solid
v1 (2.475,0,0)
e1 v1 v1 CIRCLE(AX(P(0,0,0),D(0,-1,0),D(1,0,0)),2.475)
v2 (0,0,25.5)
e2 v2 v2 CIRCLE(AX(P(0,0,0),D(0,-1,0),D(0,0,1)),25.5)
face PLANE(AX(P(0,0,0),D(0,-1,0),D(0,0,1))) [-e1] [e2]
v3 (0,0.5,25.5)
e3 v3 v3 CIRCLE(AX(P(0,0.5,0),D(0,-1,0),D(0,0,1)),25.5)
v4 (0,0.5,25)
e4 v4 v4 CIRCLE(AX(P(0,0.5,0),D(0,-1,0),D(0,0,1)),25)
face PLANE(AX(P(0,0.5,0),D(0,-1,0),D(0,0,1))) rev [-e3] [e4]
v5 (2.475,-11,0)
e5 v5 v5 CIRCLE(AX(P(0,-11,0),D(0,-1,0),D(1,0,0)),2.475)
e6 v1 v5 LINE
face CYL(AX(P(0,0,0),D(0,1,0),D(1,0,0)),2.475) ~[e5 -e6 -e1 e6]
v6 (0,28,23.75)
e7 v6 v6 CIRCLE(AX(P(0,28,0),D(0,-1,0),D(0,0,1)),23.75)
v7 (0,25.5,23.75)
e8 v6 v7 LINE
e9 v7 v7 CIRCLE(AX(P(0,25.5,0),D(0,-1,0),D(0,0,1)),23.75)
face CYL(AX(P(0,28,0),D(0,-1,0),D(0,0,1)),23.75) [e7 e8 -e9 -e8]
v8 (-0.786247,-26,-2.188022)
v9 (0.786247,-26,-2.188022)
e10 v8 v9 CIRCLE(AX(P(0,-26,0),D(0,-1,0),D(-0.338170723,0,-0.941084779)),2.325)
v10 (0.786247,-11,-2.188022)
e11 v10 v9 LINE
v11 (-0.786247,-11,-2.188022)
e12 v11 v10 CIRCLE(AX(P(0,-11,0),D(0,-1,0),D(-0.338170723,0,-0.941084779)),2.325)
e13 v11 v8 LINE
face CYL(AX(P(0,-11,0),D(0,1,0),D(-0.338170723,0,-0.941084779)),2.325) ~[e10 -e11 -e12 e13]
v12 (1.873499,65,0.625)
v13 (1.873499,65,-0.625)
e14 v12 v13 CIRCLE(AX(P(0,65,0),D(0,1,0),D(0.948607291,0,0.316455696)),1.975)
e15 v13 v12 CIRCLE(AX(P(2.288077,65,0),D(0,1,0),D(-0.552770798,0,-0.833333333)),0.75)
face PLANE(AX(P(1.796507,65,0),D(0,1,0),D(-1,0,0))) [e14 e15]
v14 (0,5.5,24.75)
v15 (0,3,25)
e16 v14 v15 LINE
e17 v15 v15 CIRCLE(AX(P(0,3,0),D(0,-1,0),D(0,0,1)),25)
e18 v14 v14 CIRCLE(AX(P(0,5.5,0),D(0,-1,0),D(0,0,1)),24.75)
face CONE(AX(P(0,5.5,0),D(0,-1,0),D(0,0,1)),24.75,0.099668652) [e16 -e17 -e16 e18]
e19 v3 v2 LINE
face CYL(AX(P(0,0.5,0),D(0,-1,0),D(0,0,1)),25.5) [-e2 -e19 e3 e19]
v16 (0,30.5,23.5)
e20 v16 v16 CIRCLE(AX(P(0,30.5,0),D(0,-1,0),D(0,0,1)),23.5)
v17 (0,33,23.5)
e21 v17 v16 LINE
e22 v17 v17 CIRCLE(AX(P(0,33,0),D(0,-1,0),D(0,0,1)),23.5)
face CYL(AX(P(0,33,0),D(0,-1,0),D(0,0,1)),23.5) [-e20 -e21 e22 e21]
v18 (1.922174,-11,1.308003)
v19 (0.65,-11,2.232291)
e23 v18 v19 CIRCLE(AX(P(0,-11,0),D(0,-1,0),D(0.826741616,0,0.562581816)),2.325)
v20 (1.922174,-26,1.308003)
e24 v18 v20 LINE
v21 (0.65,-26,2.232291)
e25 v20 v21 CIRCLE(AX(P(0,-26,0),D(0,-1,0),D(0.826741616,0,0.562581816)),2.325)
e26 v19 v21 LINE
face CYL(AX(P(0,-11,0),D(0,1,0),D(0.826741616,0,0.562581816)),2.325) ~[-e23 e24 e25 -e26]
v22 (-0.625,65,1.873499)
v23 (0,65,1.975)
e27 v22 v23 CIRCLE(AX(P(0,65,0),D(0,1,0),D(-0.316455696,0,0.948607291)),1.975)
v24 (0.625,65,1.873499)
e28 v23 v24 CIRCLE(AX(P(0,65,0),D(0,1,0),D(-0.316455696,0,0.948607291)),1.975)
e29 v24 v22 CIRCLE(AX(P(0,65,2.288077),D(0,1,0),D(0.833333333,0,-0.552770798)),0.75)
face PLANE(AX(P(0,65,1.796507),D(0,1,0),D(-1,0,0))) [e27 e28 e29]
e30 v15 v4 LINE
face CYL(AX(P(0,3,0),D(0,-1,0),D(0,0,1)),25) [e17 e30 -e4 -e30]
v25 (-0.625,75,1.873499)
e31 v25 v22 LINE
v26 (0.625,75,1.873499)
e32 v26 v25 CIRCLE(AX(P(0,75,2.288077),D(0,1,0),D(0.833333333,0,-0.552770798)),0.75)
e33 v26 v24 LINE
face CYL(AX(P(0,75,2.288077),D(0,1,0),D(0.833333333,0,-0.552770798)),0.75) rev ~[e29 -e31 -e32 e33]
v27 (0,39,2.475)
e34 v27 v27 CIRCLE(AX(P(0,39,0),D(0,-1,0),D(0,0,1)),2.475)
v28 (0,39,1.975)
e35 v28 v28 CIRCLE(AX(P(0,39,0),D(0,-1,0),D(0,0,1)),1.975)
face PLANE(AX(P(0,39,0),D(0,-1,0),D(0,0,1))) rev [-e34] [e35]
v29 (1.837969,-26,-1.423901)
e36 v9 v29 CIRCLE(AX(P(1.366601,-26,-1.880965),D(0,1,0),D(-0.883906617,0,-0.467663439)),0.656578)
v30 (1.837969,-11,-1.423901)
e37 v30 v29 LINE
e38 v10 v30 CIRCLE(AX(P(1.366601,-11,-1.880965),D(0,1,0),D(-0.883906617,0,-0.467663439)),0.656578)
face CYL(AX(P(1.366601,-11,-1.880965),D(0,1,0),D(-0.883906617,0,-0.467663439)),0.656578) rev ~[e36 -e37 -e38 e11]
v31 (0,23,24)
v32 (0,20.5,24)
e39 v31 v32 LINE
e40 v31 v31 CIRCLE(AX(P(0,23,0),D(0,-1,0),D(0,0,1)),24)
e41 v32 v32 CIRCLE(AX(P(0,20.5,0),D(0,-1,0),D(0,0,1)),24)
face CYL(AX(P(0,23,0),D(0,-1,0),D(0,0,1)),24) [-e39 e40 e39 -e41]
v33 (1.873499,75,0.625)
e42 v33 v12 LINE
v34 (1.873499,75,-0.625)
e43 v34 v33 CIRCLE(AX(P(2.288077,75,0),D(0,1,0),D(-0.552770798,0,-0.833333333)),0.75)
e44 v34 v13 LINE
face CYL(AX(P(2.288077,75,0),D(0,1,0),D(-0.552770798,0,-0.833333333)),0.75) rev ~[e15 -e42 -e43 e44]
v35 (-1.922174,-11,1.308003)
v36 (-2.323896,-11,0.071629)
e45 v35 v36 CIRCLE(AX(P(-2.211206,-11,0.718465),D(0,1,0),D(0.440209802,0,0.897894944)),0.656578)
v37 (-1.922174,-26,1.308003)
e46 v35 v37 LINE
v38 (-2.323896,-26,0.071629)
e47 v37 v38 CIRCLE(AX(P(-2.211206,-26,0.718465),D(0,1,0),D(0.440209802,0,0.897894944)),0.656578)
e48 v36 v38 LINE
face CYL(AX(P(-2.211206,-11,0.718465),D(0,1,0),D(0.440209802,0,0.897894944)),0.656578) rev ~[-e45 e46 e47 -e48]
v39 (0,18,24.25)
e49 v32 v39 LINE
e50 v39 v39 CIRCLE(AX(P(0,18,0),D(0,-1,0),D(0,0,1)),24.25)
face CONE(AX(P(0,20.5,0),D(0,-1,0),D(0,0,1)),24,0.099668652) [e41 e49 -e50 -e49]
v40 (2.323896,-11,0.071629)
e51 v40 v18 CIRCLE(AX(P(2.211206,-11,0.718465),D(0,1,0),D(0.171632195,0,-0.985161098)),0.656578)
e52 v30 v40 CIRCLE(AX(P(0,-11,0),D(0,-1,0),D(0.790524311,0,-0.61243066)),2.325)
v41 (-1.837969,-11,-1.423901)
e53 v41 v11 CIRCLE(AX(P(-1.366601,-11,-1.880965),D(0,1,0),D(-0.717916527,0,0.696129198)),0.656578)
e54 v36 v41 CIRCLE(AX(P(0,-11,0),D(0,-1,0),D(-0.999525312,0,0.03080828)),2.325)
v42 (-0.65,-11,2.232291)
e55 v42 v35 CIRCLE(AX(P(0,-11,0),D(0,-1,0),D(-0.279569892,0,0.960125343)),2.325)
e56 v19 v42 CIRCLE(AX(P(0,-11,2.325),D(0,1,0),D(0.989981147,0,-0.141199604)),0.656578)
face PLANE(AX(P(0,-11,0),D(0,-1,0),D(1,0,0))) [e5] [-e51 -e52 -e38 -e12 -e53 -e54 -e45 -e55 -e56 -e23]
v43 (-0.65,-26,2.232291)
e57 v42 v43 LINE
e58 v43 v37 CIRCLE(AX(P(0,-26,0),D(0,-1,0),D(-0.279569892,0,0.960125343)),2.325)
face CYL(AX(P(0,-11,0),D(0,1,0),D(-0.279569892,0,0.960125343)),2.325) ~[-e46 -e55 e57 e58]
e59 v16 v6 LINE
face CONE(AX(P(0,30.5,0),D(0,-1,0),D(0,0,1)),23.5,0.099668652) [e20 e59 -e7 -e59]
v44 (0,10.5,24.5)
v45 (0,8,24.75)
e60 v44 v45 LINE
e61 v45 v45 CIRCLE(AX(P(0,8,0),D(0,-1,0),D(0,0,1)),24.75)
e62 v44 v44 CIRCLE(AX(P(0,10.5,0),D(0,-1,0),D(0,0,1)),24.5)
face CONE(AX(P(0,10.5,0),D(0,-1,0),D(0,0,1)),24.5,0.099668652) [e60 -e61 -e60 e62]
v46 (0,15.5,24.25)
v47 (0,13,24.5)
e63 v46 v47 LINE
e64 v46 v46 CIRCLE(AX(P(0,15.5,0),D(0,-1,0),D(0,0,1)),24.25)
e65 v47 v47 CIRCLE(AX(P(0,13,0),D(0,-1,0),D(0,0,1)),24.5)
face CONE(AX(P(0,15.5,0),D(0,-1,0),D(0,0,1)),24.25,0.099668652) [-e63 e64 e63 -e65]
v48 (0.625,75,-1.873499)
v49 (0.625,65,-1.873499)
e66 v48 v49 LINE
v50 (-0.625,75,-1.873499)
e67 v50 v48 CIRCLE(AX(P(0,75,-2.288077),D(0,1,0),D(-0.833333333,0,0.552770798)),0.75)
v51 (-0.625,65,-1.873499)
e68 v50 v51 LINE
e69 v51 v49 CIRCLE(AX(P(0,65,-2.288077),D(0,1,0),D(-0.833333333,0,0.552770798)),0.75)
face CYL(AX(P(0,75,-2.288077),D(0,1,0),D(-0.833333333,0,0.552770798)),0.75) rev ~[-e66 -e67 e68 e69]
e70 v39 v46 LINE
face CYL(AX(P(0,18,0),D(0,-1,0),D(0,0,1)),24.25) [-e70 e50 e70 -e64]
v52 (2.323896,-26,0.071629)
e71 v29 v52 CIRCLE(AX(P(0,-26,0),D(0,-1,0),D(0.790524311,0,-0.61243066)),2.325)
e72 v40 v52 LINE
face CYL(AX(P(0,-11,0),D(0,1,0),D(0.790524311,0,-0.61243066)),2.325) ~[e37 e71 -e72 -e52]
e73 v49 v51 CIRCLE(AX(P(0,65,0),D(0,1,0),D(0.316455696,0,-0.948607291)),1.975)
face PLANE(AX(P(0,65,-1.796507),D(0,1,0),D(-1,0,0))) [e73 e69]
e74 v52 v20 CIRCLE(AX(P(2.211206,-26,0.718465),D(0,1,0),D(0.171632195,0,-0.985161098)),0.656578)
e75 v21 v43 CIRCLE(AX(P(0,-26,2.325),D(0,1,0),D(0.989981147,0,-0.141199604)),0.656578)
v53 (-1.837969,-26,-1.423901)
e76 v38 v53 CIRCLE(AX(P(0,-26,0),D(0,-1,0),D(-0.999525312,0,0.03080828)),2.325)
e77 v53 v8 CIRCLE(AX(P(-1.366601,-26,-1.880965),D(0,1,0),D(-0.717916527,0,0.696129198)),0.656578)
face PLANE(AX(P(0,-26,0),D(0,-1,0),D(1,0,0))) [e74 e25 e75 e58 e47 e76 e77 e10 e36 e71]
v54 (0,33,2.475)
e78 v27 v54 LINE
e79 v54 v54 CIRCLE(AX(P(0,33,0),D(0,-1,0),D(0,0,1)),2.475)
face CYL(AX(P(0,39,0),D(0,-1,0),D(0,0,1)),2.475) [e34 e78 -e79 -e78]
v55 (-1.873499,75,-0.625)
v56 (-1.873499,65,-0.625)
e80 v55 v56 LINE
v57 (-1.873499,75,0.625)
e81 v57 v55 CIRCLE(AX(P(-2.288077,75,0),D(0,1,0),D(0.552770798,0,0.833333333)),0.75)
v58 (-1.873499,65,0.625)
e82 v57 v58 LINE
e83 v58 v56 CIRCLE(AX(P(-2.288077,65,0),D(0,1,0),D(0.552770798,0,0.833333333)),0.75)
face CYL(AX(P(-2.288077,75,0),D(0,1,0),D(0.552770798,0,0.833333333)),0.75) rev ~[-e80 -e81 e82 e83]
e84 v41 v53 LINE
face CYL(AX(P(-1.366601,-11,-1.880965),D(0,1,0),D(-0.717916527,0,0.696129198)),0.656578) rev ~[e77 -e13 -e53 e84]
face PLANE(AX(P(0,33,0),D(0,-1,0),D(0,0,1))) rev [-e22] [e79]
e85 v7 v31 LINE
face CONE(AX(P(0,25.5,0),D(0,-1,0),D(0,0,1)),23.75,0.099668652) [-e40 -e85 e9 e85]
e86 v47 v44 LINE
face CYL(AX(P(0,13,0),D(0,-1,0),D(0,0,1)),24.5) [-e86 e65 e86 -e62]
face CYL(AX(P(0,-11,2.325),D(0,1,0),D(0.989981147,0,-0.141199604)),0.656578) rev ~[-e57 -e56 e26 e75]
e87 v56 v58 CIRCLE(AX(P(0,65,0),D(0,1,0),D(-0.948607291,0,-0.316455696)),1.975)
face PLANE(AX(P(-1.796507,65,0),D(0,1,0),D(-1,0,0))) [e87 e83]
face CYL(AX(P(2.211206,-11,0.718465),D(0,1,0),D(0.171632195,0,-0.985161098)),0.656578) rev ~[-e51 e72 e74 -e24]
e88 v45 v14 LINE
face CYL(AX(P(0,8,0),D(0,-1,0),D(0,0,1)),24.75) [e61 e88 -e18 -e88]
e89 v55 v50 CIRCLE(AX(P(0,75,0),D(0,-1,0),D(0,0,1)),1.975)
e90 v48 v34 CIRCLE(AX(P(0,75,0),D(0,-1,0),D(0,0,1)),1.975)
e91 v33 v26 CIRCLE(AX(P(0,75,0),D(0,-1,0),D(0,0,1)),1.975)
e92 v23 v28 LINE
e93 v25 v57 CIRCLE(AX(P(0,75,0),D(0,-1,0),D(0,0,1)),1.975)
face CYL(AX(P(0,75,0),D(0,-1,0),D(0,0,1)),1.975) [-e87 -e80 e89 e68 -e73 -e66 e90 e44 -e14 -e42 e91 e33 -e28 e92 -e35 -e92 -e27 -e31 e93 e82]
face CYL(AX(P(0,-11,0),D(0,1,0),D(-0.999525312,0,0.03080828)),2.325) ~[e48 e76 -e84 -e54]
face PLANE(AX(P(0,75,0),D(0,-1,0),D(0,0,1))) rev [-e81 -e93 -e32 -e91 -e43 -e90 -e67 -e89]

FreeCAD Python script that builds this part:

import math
import FreeCAD as App
import Part
import Sketcher
Q = App.Units.Quantity

doc = App.newDocument("Part")
params = doc.addObject("Spreadsheet::Sheet", "Params")
for row, (alias, value) in enumerate([
    ("sketch1_diameter", "4.95 mm"),
    ("pad1_length", "11 mm"),
    ("pad2_length", "15 mm"),
    ("sketch3_width", "75 mm"),
    ("sketch3_width2", "36 mm"),
    ("sketch3_width3", "6 mm"),
    ("sketch3_width4", "2.5 mm"),
    ("sketch3_width5", "0.5 mm"),
    ("revolution_angle", "360 deg"),
    ("sketch4_radius", "0.75 mm"),
    ("pocket1_length", "10 mm"),
], start=1):
    params.set(f"A{row}", alias)
    params.set(f"B{row}", "=" + value)
    params.setAlias(f"B{row}", alias)

body = doc.addObject("PartDesign::Body", "Body")

sketch1 = body.newObject("Sketcher::SketchObject", "Sketch")
sketch1.AttachmentSupport = (doc.getObject("XZ_Plane"), [""])
sketch1.MapMode = "FlatFace"
sketch1.addGeometry(Part.Circle(App.Vector(0, 0, 0), App.Vector(0, 0, 1), 2.475), False)
sketch1.addConstraint([
    Sketcher.Constraint("Coincident", 0, 3, -1, 1),
    Sketcher.Constraint("Diameter", 0, Q("4.95 mm")),
])
sketch1.setExpression("Constraints[1]", "Params.sketch1_diameter")
pad1 = body.newObject("PartDesign::Pad", "Pad")
pad1.Profile = sketch1
pad1.setExpression("Length", "Params.pad1_length")

sketch2 = body.newObject("Sketcher::SketchObject", "Sketch001")
sketch2.AttachmentSupport = (doc.getObject("XZ_Plane"), [""])
sketch2.MapMode = "FlatFace"
sketch2.AttachmentOffset = App.Placement(App.Vector(0, 0, 11), App.Rotation())
sketch2.addGeometry([
    Part.ArcOfCircle(Part.Circle(App.Vector(0, 2.325, 0), App.Vector(0, 0, 1), 0.656578), math.radians(-171.882732), math.radians(-8.117268)),
    Part.ArcOfCircle(Part.Circle(App.Vector(0, 0, 0), App.Vector(0, 0, 1), 2.325), math.radians(106.234536), math.radians(145.765464)),
    Part.ArcOfCircle(Part.Circle(App.Vector(-2.211206, 0.718465, 0), App.Vector(0, 0, 1), 0.656578), math.radians(-99.882732), math.radians(63.882732)),
    Part.ArcOfCircle(Part.Circle(App.Vector(0, 0, 0), App.Vector(0, 0, 1), 2.325), math.radians(178.234536), math.radians(217.765464)),
    Part.ArcOfCircle(Part.Circle(App.Vector(-1.366601, -1.880965, 0), App.Vector(0, 0, 1), 0.656578), math.radians(-27.882732), math.radians(135.882732)),
    Part.ArcOfCircle(Part.Circle(App.Vector(0, 0, 0), App.Vector(0, 0, 1), 2.325), math.radians(-109.765464), math.radians(-70.234536)),
    Part.ArcOfCircle(Part.Circle(App.Vector(1.366601, -1.880965, 0), App.Vector(0, 0, 1), 0.656578), math.radians(44.117268), math.radians(207.882732)),
    Part.ArcOfCircle(Part.Circle(App.Vector(0, 0, 0), App.Vector(0, 0, 1), 2.325), math.radians(-37.765464), math.radians(1.765464)),
    Part.ArcOfCircle(Part.Circle(App.Vector(2.211206, 0.718465, 0), App.Vector(0, 0, 1), 0.656578), math.radians(116.117268), math.radians(279.882732)),
    Part.ArcOfCircle(Part.Circle(App.Vector(0, 0, 0), App.Vector(0, 0, 1), 2.325), math.radians(34.234536), math.radians(73.765464)),
], False)
sketch2.addConstraint([
    Sketcher.Constraint("Coincident", 0, 1, 1, 1),
    Sketcher.Constraint("Coincident", 1, 2, 2, 2),
    Sketcher.Constraint("Coincident", 2, 1, 3, 1),
    Sketcher.Constraint("Coincident", 3, 2, 4, 2),
    Sketcher.Constraint("Coincident", 4, 1, 5, 1),
    Sketcher.Constraint("Coincident", 5, 2, 6, 2),
    Sketcher.Constraint("Coincident", 6, 1, 7, 1),
    Sketcher.Constraint("Coincident", 7, 2, 8, 2),
    Sketcher.Constraint("Coincident", 8, 1, 9, 1),
    Sketcher.Constraint("Coincident", 9, 2, 0, 2),
    Sketcher.Constraint("Coincident", 1, 3, -1, 1),
    Sketcher.Constraint("Coincident", 3, 3, -1, 1),
    Sketcher.Constraint("Coincident", 5, 3, -1, 1),
    Sketcher.Constraint("Coincident", 7, 3, -1, 1),
    Sketcher.Constraint("Coincident", 9, 3, -1, 1),
    Sketcher.Constraint("Equal", 0, 2),
    Sketcher.Constraint("Equal", 1, 3),
    Sketcher.Constraint("Equal", 2, 4),
    Sketcher.Constraint("Equal", 3, 5),
    Sketcher.Constraint("Equal", 4, 6),
    Sketcher.Constraint("Equal", 5, 7),
    Sketcher.Constraint("Equal", 6, 8),
    Sketcher.Constraint("Equal", 7, 9),
    Sketcher.Constraint("Symmetric", 4, 3, 6, 3, -2),
    Sketcher.Constraint("Symmetric", 2, 3, 8, 3, -2),
    Sketcher.Constraint("PointOnObject", 0, 3, -2),
    Sketcher.Constraint("Radius", 1, Q("2.325 mm")),
    Sketcher.Constraint("DistanceX", 0, 1, 9, 2, Q("1.3 mm")),
    Sketcher.Constraint("Radius", 0, Q("0.656578 mm")),
    Sketcher.Constraint("DistanceX", 4, 3, -1, 1, Q("1.366601 mm")),
    Sketcher.Constraint("DistanceY", 3, 2, -1, 1, Q("1.423901 mm")),
    Sketcher.Constraint("DistanceY", -1, 1, 2, 1, Q("0.071629 mm")),
    Sketcher.Constraint("DistanceY", 4, 3, 2, 3, Q("2.599429 mm")),
])
pad2 = body.newObject("PartDesign::Pad", "Pad001")
pad2.Profile = sketch2
pad2.setExpression("Length", "Params.pad2_length")

sketch3 = body.newObject("Sketcher::SketchObject", "Sketch002")
sketch3.AttachmentSupport = (doc.getObject("YZ_Plane"), [""])
sketch3.MapMode = "FlatFace"
sketch3.addGeometry([
    Part.LineSegment(App.Vector(0, 25.5, 0), App.Vector(0, 0, 0)),
    Part.LineSegment(App.Vector(0, 0, 0), App.Vector(75, 0, 0)),
    Part.LineSegment(App.Vector(75, 0, 0), App.Vector(75, 1.975, 0)),
    Part.LineSegment(App.Vector(75, 1.975, 0), App.Vector(39, 1.975, 0)),
    Part.LineSegment(App.Vector(39, 1.975, 0), App.Vector(39, 2.475, 0)),
    Part.LineSegment(App.Vector(39, 2.475, 0), App.Vector(33, 2.475, 0)),
    Part.LineSegment(App.Vector(33, 2.475, 0), App.Vector(33, 23.5, 0)),
    Part.LineSegment(App.Vector(33, 23.5, 0), App.Vector(30.5, 23.5, 0)),
    Part.LineSegment(App.Vector(30.5, 23.5, 0), App.Vector(28, 23.75, 0)),
    Part.LineSegment(App.Vector(28, 23.75, 0), App.Vector(25.5, 23.75, 0)),
    Part.LineSegment(App.Vector(25.5, 23.75, 0), App.Vector(23, 24, 0)),
    Part.LineSegment(App.Vector(23, 24, 0), App.Vector(20.5, 24, 0)),
    Part.LineSegment(App.Vector(20.5, 24, 0), App.Vector(18, 24.25, 0)),
    Part.LineSegment(App.Vector(18, 24.25, 0), App.Vector(15.5, 24.25, 0)),
    Part.LineSegment(App.Vector(15.5, 24.25, 0), App.Vector(13, 24.5, 0)),
    Part.LineSegment(App.Vector(13, 24.5, 0), App.Vector(10.5, 24.5, 0)),
    Part.LineSegment(App.Vector(10.5, 24.5, 0), App.Vector(8, 24.75, 0)),
    Part.LineSegment(App.Vector(8, 24.75, 0), App.Vector(5.5, 24.75, 0)),
    Part.LineSegment(App.Vector(5.5, 24.75, 0), App.Vector(3, 25, 0)),
    Part.LineSegment(App.Vector(3, 25, 0), App.Vector(0.5, 25, 0)),
    Part.LineSegment(App.Vector(0.5, 25, 0), App.Vector(0.5, 25.5, 0)),
    Part.LineSegment(App.Vector(0.5, 25.5, 0), App.Vector(0, 25.5, 0)),
], False)
sketch3.addConstraint([
    Sketcher.Constraint("Coincident", 0, 2, 1, 1),
    Sketcher.Constraint("Coincident", 1, 2, 2, 1),
    Sketcher.Constraint("Coincident", 2, 2, 3, 1),
    Sketcher.Constraint("Coincident", 3, 2, 4, 1),
    Sketcher.Constraint("Coincident", 4, 2, 5, 1),
    Sketcher.Constraint("Coincident", 5, 2, 6, 1),
    Sketcher.Constraint("Coincident", 6, 2, 7, 1),
    Sketcher.Constraint("Coincident", 7, 2, 8, 1),
    Sketcher.Constraint("Coincident", 8, 2, 9, 1),
    Sketcher.Constraint("Coincident", 9, 2, 10, 1),
    Sketcher.Constraint("Coincident", 10, 2, 11, 1),
    Sketcher.Constraint("Coincident", 11, 2, 12, 1),
    Sketcher.Constraint("Coincident", 12, 2, 13, 1),
    Sketcher.Constraint("Coincident", 13, 2, 14, 1),
    Sketcher.Constraint("Coincident", 14, 2, 15, 1),
    Sketcher.Constraint("Coincident", 15, 2, 16, 1),
    Sketcher.Constraint("Coincident", 16, 2, 17, 1),
    Sketcher.Constraint("Coincident", 17, 2, 18, 1),
    Sketcher.Constraint("Coincident", 18, 2, 19, 1),
    Sketcher.Constraint("Coincident", 19, 2, 20, 1),
    Sketcher.Constraint("Coincident", 20, 2, 21, 1),
    Sketcher.Constraint("Coincident", 21, 2, 0, 1),
    Sketcher.Constraint("Vertical", 0),
    Sketcher.Constraint("Horizontal", 1),
    Sketcher.Constraint("Vertical", 2),
    Sketcher.Constraint("Horizontal", 3),
    Sketcher.Constraint("Vertical", 4),
    Sketcher.Constraint("Horizontal", 5),
    Sketcher.Constraint("Vertical", 6),
    Sketcher.Constraint("Horizontal", 7),
    Sketcher.Constraint("Horizontal", 9),
    Sketcher.Constraint("Horizontal", 11),
    Sketcher.Constraint("Horizontal", 13),
    Sketcher.Constraint("Horizontal", 15),
    Sketcher.Constraint("Horizontal", 17),
    Sketcher.Constraint("Horizontal", 19),
    Sketcher.Constraint("Vertical", 20),
    Sketcher.Constraint("Horizontal", 21),
    Sketcher.Constraint("Coincident", 0, 2, -1, 1),
    Sketcher.Constraint("Parallel", 8, 10),
    Sketcher.Constraint("Parallel", 10, 12),
    Sketcher.Constraint("Parallel", 12, 14),
    Sketcher.Constraint("Parallel", 14, 16),
    Sketcher.Constraint("Parallel", 16, 18),
    Sketcher.Constraint("Equal", 7, 9),
    Sketcher.Constraint("Equal", 9, 11),
    Sketcher.Constraint("Equal", 11, 13),
    Sketcher.Constraint("Equal", 13, 15),
    Sketcher.Constraint("Equal", 15, 17),
    Sketcher.Constraint("Equal", 17, 19),
    Sketcher.Constraint("Equal", 21, 4),
    Sketcher.Constraint("Equal", 4, 20),
    Sketcher.Constraint("Equal", 8, 10),
    Sketcher.Constraint("Equal", 10, 12),
    Sketcher.Constraint("Equal", 12, 14),
    Sketcher.Constraint("Equal", 14, 16),
    Sketcher.Constraint("Equal", 16, 18),
    Sketcher.Constraint("DistanceX", 1, 1, 1, 2, Q("75 mm")),
    Sketcher.Constraint("DistanceX", 3, 2, 3, 1, Q("36 mm")),
    Sketcher.Constraint("DistanceX", 5, 2, 5, 1, Q("6 mm")),
    Sketcher.Constraint("DistanceX", 7, 2, 7, 1, Q("2.5 mm")),
    Sketcher.Constraint("DistanceX", 21, 2, 21, 1, Q("0.5 mm")),
    Sketcher.Constraint("DistanceY", 0, 2, 0, 1, Q("25.5 mm")),
    Sketcher.Constraint("DistanceY", -1, 1, 10, 2, Q("24 mm")),
    Sketcher.Constraint("DistanceY", 2, 1, 2, 2, Q("1.975 mm")),
])
sketch3.setExpression("Constraints[57]", "Params.sketch3_width")
sketch3.setExpression("Constraints[58]", "Params.sketch3_width2")
sketch3.setExpression("Constraints[59]", "Params.sketch3_width3")
sketch3.setExpression("Constraints[60]", "Params.sketch3_width4")
sketch3.setExpression("Constraints[61]", "Params.sketch3_width5")
revolution = body.newObject("PartDesign::Revolution", "Revolution")
revolution.Profile = sketch3
revolution.ReferenceAxis = (sketch3, ["H_Axis"])
revolution.setExpression("Angle", "Params.revolution_angle")

sketch4 = body.newObject("Sketcher::SketchObject", "Sketch003")
sketch4.AttachmentSupport = (doc.getObject("XZ_Plane"), [""])
sketch4.MapMode = "FlatFace"
sketch4.AttachmentOffset = App.Placement(App.Vector(0, 0, -75), App.Rotation())
sketch4.addGeometry([
    Part.ArcOfCircle(Part.Circle(App.Vector(0, 0, 0), App.Vector(0, 0, 1), 1.975), math.radians(71.551285), math.radians(108.448715)),
    Part.ArcOfCircle(Part.Circle(App.Vector(0, 2.288077, 0), App.Vector(0, 0, 1), 0.75), math.radians(-146.44269), math.radians(-33.55731)),
    Part.ArcOfCircle(Part.Circle(App.Vector(0, 0, 0), App.Vector(0, 0, 1), 1.975), math.radians(-18.448715), math.radians(18.448715)),
    Part.ArcOfCircle(Part.Circle(App.Vector(2.288077, 0, 0), App.Vector(0, 0, 1), 0.75), math.radians(123.55731), math.radians(236.44269)),
    Part.ArcOfCircle(Part.Circle(App.Vector(0, 0, 0), App.Vector(0, 0, 1), 1.975), math.radians(-108.448715), math.radians(-71.551285)),
    Part.ArcOfCircle(Part.Circle(App.Vector(0, -2.288077, 0), App.Vector(0, 0, 1), 0.75), math.radians(33.55731), math.radians(146.44269)),
    Part.ArcOfCircle(Part.Circle(App.Vector(0, 0, 0), App.Vector(0, 0, 1), 1.975), math.radians(161.551285), math.radians(198.448715)),
    Part.ArcOfCircle(Part.Circle(App.Vector(-2.288077, 0, 0), App.Vector(0, 0, 1), 0.75), math.radians(-56.44269), math.radians(56.44269)),
], False)
sketch4.addConstraint([
    Sketcher.Constraint("Coincident", 0, 1, 1, 2),
    Sketcher.Constraint("Coincident", 1, 1, 0, 2),
    Sketcher.Constraint("Coincident", 2, 1, 3, 2),
    Sketcher.Constraint("Coincident", 3, 1, 2, 2),
    Sketcher.Constraint("Coincident", 4, 1, 5, 2),
    Sketcher.Constraint("Coincident", 5, 1, 4, 2),
    Sketcher.Constraint("Coincident", 6, 1, 7, 2),
    Sketcher.Constraint("Coincident", 7, 1, 6, 2),
    Sketcher.Constraint("Coincident", 0, 3, -1, 1),
    Sketcher.Constraint("Coincident", 2, 3, -1, 1),
    Sketcher.Constraint("Coincident", 4, 3, -1, 1),
    Sketcher.Constraint("Coincident", 6, 3, -1, 1),
    Sketcher.Constraint("Equal", 0, 2),
    Sketcher.Constraint("Equal", 1, 3),
    Sketcher.Constraint("Equal", 2, 4),
    Sketcher.Constraint("Equal", 3, 5),
    Sketcher.Constraint("Equal", 4, 6),
    Sketcher.Constraint("Equal", 5, 7),
    Sketcher.Constraint("Symmetric", 1, 3, 5, 3, -1, 1),
    Sketcher.Constraint("Symmetric", 3, 3, 7, 3, -1, 1),
    Sketcher.Constraint("PointOnObject", 1, 3, -2),
    Sketcher.Constraint("PointOnObject", 3, 3, -1),
    Sketcher.Constraint("Radius", 1, Q("0.75 mm")),
    Sketcher.Constraint("Radius", 0, Q("1.975 mm")),
    Sketcher.Constraint("DistanceX", 1, 1, 0, 1, Q("1.25 mm")),
    Sketcher.Constraint("DistanceY", 2, 1, 3, 1, Q("1.25 mm")),
])
sketch4.setExpression("Constraints[22]", "Params.sketch4_radius")
pocket1 = body.newObject("PartDesign::Pocket", "Pocket")
pocket1.Profile = sketch4
pocket1.setExpression("Length", "Params.pocket1_length")
pocket1.Reversed = True

doc.recompute()
